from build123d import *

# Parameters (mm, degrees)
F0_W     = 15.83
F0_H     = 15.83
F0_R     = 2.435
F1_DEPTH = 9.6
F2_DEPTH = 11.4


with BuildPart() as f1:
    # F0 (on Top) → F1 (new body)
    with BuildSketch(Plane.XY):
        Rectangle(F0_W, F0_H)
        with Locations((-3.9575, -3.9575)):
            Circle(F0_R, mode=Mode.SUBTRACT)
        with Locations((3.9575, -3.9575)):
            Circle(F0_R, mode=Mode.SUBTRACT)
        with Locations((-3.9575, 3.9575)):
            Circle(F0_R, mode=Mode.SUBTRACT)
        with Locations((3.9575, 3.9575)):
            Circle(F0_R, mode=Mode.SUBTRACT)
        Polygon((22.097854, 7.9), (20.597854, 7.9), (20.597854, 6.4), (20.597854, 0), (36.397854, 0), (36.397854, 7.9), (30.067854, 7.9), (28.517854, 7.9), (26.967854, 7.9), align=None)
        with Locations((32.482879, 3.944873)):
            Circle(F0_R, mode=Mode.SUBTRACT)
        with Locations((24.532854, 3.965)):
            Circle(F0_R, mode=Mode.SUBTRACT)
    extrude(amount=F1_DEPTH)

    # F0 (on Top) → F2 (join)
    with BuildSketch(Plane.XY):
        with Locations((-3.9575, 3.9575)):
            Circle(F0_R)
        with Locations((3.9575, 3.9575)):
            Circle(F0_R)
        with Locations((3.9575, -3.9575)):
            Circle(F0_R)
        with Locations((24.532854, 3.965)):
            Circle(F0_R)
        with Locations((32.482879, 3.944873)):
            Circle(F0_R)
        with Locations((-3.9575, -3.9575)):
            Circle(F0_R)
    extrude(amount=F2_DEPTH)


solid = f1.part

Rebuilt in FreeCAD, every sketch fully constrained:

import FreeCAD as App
import Part
import Sketcher

V = App.Vector

doc = App.newDocument("Part")
body = doc.addObject("PartDesign::Body", "Body")
body.AllowCompound = True

sketch1 = body.newObject("Sketcher::SketchObject", "Sketch")
sketch1.AttachmentSupport = (doc.getObject("XY_Plane"), [""])
sketch1.MapMode = "FlatFace"
sketch1.addGeometry(Part.LineSegment(V(-7.9, 7.9, 0), V(-7.9, -7.9, 0)), False)
sketch1.addGeometry(Part.LineSegment(V(-7.9, -7.9, 0), V(7.9, -7.9, 0)), False)
sketch1.addGeometry(Part.LineSegment(V(7.9, -7.9, 0), V(7.9, 7.9, 0)), False)
sketch1.addGeometry(Part.LineSegment(V(7.9, 7.9, 0), V(-7.9, 7.9, 0)), False)
sketch1.addGeometry(Part.Circle(V(-4, -4, 0), V(0, 0, 1), 2.4), False)
sketch1.addGeometry(Part.Circle(V(4, -4, 0), V(0, 0, 1), 2.4), False)
sketch1.addGeometry(Part.Circle(V(-4, 4, 0), V(0, 0, 1), 2.4), False)
sketch1.addGeometry(Part.Circle(V(4, 4, 0), V(0, 0, 1), 2.4), False)
sketch1.addGeometry(Part.LineSegment(V(20.6, 7.9, 0), V(20.6, 0, 0)), False)
sketch1.addGeometry(Part.LineSegment(V(20.6, 0, 0), V(36.4, 0, 0)), False)
sketch1.addGeometry(Part.LineSegment(V(36.4, 0, 0), V(36.4, 7.9, 0)), False)
sketch1.addGeometry(Part.LineSegment(V(36.4, 7.9, 0), V(20.6, 7.9, 0)), False)
sketch1.addGeometry(Part.Circle(V(32.5, 3.9, 0), V(0, 0, 1), 2.4), False)
sketch1.addGeometry(Part.Circle(V(24.5, 4, 0), V(0, 0, 1), 2.4), False)
sketch1.addConstraint(Sketcher.Constraint("Coincident", 0, 2, 1, 1))
sketch1.addConstraint(Sketcher.Constraint("Coincident", 1, 2, 2, 1))
sketch1.addConstraint(Sketcher.Constraint("Coincident", 2, 2, 3, 1))
sketch1.addConstraint(Sketcher.Constraint("Coincident", 3, 2, 0, 1))
sketch1.addConstraint(Sketcher.Constraint("Coincident", 8, 2, 9, 1))
sketch1.addConstraint(Sketcher.Constraint("Coincident", 9, 2, 10, 1))
sketch1.addConstraint(Sketcher.Constraint("Coincident", 10, 2, 11, 1))
sketch1.addConstraint(Sketcher.Constraint("Coincident", 11, 2, 8, 1))
sketch1.addConstraint(Sketcher.Constraint("Vertical", 0))
sketch1.addConstraint(Sketcher.Constraint("Horizontal", 1))
sketch1.addConstraint(Sketcher.Constraint("Vertical", 2))
sketch1.addConstraint(Sketcher.Constraint("Horizontal", 3))
sketch1.addConstraint(Sketcher.Constraint("Vertical", 8))
sketch1.addConstraint(Sketcher.Constraint("Horizontal", 9))
sketch1.addConstraint(Sketcher.Constraint("Vertical", 10))
sketch1.addConstraint(Sketcher.Constraint("Horizontal", 11))
sketch1.addConstraint(Sketcher.Constraint("Equal", 4, 5))
sketch1.addConstraint(Sketcher.Constraint("Equal", 5, 6))
sketch1.addConstraint(Sketcher.Constraint("Equal", 6, 7))
sketch1.addConstraint(Sketcher.Constraint("Equal", 7, 12))
sketch1.addConstraint(Sketcher.Constraint("Equal", 12, 13))
sketch1.addConstraint(Sketcher.Constraint("Symmetric", 5, 3, 6, 3, -1, 1))
sketch1.addConstraint(Sketcher.Constraint("Symmetric", 4, 3, 7, 3, -1, 1))
sketch1.addConstraint(Sketcher.Constraint("Symmetric", 0, 2, 2, 2, -1, 1))
sketch1.addConstraint(Sketcher.Constraint("Symmetric", 4, 3, 5, 3, -2))
sketch1.addConstraint(Sketcher.Constraint("PointOnObject", 8, 2, -1))
sketch1.addConstraint(Sketcher.Constraint("Equal", 3, 0))
sketch1.addConstraint(Sketcher.Constraint("Diameter", 4, 4.87))
sketch1.addConstraint(Sketcher.Constraint("DistanceX", 9, 1, 9, 2, 15.8))
sketch1.addConstraint(Sketcher.Constraint("DistanceY", 8, 2, 8, 1, 7.9))
sketch1.addConstraint(Sketcher.Constraint("DistanceX", 1, 1, 1, 2, 15.83))
sketch1.addConstraint(Sketcher.Constraint("DistanceY", 0, 2, 13, 3, 11.88))
sketch1.addConstraint(Sketcher.Constraint("DistanceX", 4, 3, 5, 3, 7.915))
sketch1.addConstraint(Sketcher.Constraint("DistanceY", 4, 3, 6, 3, 7.915))
sketch1.addConstraint(Sketcher.Constraint("DistanceX", 8, 2, 13, 3, 3.935))
sketch1.addConstraint(Sketcher.Constraint("DistanceX", -1, 1, 12, 3, 32.482879))
sketch1.addConstraint(Sketcher.Constraint("DistanceY", -1, 1, 12, 3, 3.944873))
sketch1.addConstraint(Sketcher.Constraint("DistanceX", -1, 1, 13, 3, 24.532854))
pad1 = body.newObject("PartDesign::Pad", "Pad")
pad1.Profile = sketch1
pad1.Length = 9.6

sketch2 = body.newObject("Sketcher::SketchObject", "Sketch001")
sketch2.AttachmentSupport = (doc.getObject("XY_Plane"), [""])
sketch2.MapMode = "FlatFace"
sketch2.addGeometry(Part.Circle(V(-4, 4, 0), V(0, 0, 1), 2.4), False)
sketch2.addGeometry(Part.Circle(V(4, 4, 0), V(0, 0, 1), 2.4), False)
sketch2.addGeometry(Part.Circle(V(4, -4, 0), V(0, 0, 1), 2.4), False)
sketch2.addGeometry(Part.Circle(V(24.5, 4, 0), V(0, 0, 1), 2.4), False)
sketch2.addGeometry(Part.Circle(V(32.5, 3.9, 0), V(0, 0, 1), 2.4), False)
sketch2.addGeometry(Part.Circle(V(-4, -4, 0), V(0, 0, 1), 2.4), False)
sketch2.addConstraint(Sketcher.Constraint("Equal", 0, 1))
sketch2.addConstraint(Sketcher.Constraint("Equal", 1, 2))
sketch2.addConstraint(Sketcher.Constraint("Equal", 2, 3))
sketch2.addConstraint(Sketcher.Constraint("Equal", 3, 4))
sketch2.addConstraint(Sketcher.Constraint("Equal", 4, 5))
sketch2.addConstraint(Sketcher.Constraint("Symmetric", 0, 3, 2, 3, -1, 1))
sketch2.addConstraint(Sketcher.Constraint("Symmetric", 1, 3, 5, 3, -1, 1))
sketch2.addConstraint(Sketcher.Constraint("Symmetric", 0, 3, 1, 3, -2))
sketch2.addConstraint(Sketcher.Constraint("Diameter", 0, 4.87))
sketch2.addConstraint(Sketcher.Constraint("DistanceY", -1, 1, 3, 3, 3.965))
sketch2.addConstraint(Sketcher.Constraint("DistanceX", 0, 3, 1, 3, 7.915))
sketch2.addConstraint(Sketcher.Constraint("DistanceY", 2, 3, 1, 3, 7.915))
sketch2.addConstraint(Sketcher.Constraint("DistanceX", -1, 1, 4, 3, 32.482879))
sketch2.addConstraint(Sketcher.Constraint("DistanceX", -1, 1, 3, 3, 24.532854))
sketch2.addConstraint(Sketcher.Constraint("DistanceY", -1, 1, 4, 3, 3.944873))
pad2 = body.newObject("PartDesign::Pad", "Pad001")
pad2.Profile = sketch2
pad2.Length = 11.4

doc.recompute()
